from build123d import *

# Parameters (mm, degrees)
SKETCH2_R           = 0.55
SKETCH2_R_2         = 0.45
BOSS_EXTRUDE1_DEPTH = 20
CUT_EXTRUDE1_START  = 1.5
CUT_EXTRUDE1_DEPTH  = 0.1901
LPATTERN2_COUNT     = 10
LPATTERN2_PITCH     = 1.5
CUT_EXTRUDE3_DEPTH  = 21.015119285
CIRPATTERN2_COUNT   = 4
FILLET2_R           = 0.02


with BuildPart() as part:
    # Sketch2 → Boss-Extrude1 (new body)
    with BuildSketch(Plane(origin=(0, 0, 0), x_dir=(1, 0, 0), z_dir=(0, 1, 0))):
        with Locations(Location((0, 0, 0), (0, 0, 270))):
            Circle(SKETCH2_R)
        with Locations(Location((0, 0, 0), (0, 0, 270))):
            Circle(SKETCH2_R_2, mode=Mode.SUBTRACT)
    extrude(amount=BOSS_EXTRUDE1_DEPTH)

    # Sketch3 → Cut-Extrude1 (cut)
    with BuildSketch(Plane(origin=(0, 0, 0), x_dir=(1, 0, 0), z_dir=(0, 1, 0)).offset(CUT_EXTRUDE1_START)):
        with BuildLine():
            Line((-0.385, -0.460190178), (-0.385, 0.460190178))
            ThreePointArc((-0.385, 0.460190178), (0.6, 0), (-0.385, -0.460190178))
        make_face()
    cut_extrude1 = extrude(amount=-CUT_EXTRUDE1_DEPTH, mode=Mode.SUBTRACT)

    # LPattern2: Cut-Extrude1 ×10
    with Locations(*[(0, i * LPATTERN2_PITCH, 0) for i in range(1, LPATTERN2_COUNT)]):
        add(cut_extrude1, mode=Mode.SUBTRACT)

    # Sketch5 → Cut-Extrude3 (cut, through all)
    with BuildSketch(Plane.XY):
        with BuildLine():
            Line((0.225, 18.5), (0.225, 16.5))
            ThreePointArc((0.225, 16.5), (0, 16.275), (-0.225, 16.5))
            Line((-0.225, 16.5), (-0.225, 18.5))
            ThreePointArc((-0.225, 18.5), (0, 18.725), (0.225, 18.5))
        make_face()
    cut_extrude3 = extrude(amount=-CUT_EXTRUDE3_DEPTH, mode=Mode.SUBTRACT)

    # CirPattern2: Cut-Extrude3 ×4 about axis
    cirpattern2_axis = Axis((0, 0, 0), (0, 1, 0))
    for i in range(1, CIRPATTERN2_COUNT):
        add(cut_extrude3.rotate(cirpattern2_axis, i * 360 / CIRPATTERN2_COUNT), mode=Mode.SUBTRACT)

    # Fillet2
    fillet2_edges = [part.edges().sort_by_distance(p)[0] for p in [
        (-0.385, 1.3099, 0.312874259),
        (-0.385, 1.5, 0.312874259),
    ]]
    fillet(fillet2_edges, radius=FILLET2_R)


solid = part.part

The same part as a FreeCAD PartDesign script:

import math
import FreeCAD as App
import Part
import Sketcher
from FreeCAD import Vector


def edges_at(feature, points):
    """Names of the edges that pass closest to the given points."""
    edges = feature.Shape.Edges
    near = lambda p: min(range(len(edges)), key=lambda i: edges[i].distToShape(Part.Vertex(*p))[0])
    return sorted({f"Edge{near(p) + 1}" for p in points})

doc = App.newDocument("Part")
body = doc.addObject("PartDesign::Body", "Body")

# Sketch on XZ plane
sketch1 = doc.addObject("Sketcher::SketchObject", "Sketch")
body.addObject(sketch1)
sketch1.AttachmentSupport = (doc.XZ_Plane, [""])
sketch1.MapMode = "FlatFace"
sketch1.addGeometry([
    Part.Circle(Vector(0, 0, 0), Vector(0, 0, 1), 0.55),
    Part.Circle(Vector(0, 0, 0), Vector(0, 0, 1), 0.45),
], False)
sketch1.addConstraint([
    Sketcher.Constraint("Coincident", 0, 3, -1, 1),
    Sketcher.Constraint("Coincident", 1, 3, -1, 1),
    Sketcher.Constraint("Diameter", 0, 1.1),
    Sketcher.Constraint("Diameter", 1, 0.9),
])
pad1 = doc.addObject("PartDesign::Pad", "Pad")
body.addObject(pad1)
pad1.Profile = sketch1
pad1.Length = 20
pad1.Reversed = True

# Sketch on XZ plane
sketch2 = doc.addObject("Sketcher::SketchObject", "Sketch001")
body.addObject(sketch2)
sketch2.AttachmentSupport = (doc.XZ_Plane, [""])
sketch2.MapMode = "FlatFace"
sketch2.AttachmentOffset = App.Placement(Vector(0, 0, -1.5), App.Rotation())
sketch2.addGeometry([
    Part.LineSegment(Vector(-0.4, -0.5, 0), Vector(-0.4, 0.5, 0)),
    Part.ArcOfCircle(Part.Circle(Vector(0, 0, 0), Vector(0, 0, 1), 0.6), math.radians(-130), math.radians(130)),
], False)
sketch2.addConstraint([
    Sketcher.Constraint("Coincident", 0, 1, 1, 1),
    Sketcher.Constraint("Coincident", 1, 2, 0, 2),
    Sketcher.Constraint("Vertical", 0),
    Sketcher.Constraint("Coincident", 1, 3, -1, 1),
    Sketcher.Constraint("Radius", 1, 0.6),
    Sketcher.Constraint("DistanceX", 0, 1, -1, 1, 0.385),
])
pocket1 = doc.addObject("PartDesign::Pocket", "Pocket")
body.addObject(pocket1)
pocket1.Profile = sketch2
pocket1.Length = 0.1901
pocket1.Reversed = True
doc.recompute()

linearpattern = doc.addObject("PartDesign::LinearPattern", "LinearPattern")
body.addObject(linearpattern)
linearpattern.Originals = [pocket1]
linearpattern.Direction = (doc.Y_Axis, [""])
linearpattern.Mode = "offset"
linearpattern.Offset = 1.5
linearpattern.Occurrences = 10
body.Tip = linearpattern

# Sketch on XY plane
sketch3 = doc.addObject("Sketcher::SketchObject", "Sketch002")
body.addObject(sketch3)
sketch3.AttachmentSupport = (doc.XY_Plane, [""])
sketch3.MapMode = "FlatFace"
sketch3.addGeometry([
    Part.LineSegment(Vector(0.23, 16.5, 0), Vector(0.23, 18.5, 0)),
    Part.ArcOfCircle(Part.Circle(Vector(0, 18.5, 0), Vector(0, 0, 1), 0.23), math.radians(0), math.radians(180)),
    Part.LineSegment(Vector(-0.23, 18.5, 0), Vector(-0.23, 16.5, 0)),
    Part.ArcOfCircle(Part.Circle(Vector(0, 16.5, 0), Vector(0, 0, 1), 0.23), math.radians(180), math.radians(360)),
], False)
sketch3.addConstraint([
    Sketcher.Constraint("Tangent", 0, 2, 1, 1),
    Sketcher.Constraint("Tangent", 1, 2, 2, 1),
    Sketcher.Constraint("Tangent", 2, 2, 3, 1),
    Sketcher.Constraint("Tangent", 3, 2, 0, 1),
    Sketcher.Constraint("Vertical", 0),
    Sketcher.Constraint("Vertical", 2),
    Sketcher.Constraint("PointOnObject", 1, 3, -2),
    Sketcher.Constraint("DistanceY", 0, 1, 0, 2, 2.0),
    Sketcher.Constraint("Radius", 1, 0.225),
    Sketcher.Constraint("DistanceY", -1, 1, 1, 3, 18.5),
])
pocket2 = doc.addObject("PartDesign::Pocket", "Pocket001")
body.addObject(pocket2)
pocket2.Profile = sketch3
pocket2.Type = "ThroughAll"
doc.recompute()

polarpattern = doc.addObject("PartDesign::PolarPattern", "PolarPattern")
body.addObject(polarpattern)
polarpattern.Originals = [pocket2]
polarpattern.Axis = (doc.Y_Axis, [""])
polarpattern.Angle = 360
polarpattern.Occurrences = 4
body.Tip = polarpattern
doc.recompute()

fillet = doc.addObject("PartDesign::Fillet", "Fillet")
body.addObject(fillet)
fillet.Base = (polarpattern, edges_at(polarpattern, [(-0.385, 1.31, 0.313), (-0.385, 1.5, 0.313)]))
fillet.Radius = 0.02

doc.recompute()
